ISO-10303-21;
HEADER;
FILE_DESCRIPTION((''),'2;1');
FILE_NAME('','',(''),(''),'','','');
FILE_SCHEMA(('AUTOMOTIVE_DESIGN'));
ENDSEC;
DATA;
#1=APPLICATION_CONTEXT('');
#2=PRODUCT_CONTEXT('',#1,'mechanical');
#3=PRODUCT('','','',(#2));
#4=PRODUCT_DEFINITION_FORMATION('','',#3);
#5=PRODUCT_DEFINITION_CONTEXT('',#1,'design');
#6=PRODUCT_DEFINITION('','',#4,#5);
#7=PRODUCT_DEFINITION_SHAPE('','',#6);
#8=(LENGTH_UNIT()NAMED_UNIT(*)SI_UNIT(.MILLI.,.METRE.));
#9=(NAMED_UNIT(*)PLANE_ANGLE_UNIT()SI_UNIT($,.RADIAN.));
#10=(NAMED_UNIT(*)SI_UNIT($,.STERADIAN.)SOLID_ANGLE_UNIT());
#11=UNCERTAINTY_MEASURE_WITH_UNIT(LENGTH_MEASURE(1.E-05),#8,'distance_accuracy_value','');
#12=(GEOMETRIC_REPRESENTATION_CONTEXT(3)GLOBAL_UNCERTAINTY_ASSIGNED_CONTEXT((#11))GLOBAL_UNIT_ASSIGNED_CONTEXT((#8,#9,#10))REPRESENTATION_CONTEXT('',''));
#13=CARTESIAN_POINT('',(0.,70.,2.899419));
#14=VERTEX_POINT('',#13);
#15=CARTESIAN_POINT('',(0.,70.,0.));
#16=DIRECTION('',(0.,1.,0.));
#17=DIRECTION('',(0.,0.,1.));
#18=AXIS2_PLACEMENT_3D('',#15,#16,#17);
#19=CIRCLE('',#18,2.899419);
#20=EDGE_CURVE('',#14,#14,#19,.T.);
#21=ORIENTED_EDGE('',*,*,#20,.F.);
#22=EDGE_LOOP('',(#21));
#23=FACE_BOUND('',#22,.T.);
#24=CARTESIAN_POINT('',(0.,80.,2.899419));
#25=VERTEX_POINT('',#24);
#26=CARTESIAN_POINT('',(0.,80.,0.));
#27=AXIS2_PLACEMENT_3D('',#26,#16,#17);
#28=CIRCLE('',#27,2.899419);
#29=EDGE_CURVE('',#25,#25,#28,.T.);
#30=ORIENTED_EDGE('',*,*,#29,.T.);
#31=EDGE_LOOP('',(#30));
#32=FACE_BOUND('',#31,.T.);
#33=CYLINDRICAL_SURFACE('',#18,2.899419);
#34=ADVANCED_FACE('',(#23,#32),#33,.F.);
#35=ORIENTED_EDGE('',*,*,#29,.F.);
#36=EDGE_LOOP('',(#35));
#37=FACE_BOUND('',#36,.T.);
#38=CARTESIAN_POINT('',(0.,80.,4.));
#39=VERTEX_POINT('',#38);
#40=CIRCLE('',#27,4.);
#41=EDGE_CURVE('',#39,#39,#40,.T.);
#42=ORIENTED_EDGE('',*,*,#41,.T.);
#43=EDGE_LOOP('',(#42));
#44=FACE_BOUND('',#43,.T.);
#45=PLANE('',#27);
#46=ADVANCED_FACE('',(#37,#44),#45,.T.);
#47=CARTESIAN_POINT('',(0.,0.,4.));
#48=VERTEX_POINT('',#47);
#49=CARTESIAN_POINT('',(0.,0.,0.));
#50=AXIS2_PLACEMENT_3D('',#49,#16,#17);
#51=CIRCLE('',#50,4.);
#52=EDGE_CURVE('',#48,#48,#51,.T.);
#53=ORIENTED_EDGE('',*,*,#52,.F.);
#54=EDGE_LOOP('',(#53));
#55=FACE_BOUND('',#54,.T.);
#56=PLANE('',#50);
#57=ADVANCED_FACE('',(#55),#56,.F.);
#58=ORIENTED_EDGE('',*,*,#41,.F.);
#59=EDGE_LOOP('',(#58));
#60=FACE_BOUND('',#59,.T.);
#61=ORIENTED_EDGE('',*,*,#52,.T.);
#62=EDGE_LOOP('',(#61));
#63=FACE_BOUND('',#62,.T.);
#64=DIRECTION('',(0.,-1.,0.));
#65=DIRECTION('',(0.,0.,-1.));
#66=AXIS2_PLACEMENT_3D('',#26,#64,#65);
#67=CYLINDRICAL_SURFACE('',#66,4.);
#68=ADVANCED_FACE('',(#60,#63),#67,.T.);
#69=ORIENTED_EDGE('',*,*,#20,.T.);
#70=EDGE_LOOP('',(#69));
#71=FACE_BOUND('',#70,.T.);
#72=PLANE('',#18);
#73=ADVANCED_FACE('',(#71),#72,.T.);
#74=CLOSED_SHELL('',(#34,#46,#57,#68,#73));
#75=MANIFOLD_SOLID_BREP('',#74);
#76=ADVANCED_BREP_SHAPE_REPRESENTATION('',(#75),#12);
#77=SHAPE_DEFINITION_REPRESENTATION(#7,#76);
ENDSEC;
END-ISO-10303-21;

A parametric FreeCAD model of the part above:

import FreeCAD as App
import Part
import Sketcher

V = App.Vector
Q = App.Units.Quantity

doc = App.newDocument("Part")
body = doc.addObject("PartDesign::Body", "Body")

sketch1 = doc.addObject("Sketcher::SketchObject", "Sketch")
body.addObject(sketch1)
sketch1.AttachmentSupport = (doc.XZ_Plane, [""])
sketch1.MapMode = "FlatFace"
sketch1.addGeometry(Part.Circle(V(0, 0, 0), V(0, 0, 1), 4), False)
sketch1.addConstraint([
    Sketcher.Constraint("Coincident", 0, 3, -1, 1),
    Sketcher.Constraint("Diameter", 0, Q("8 mm")),
])
pad1 = doc.addObject("PartDesign::Pad", "Pad")
body.addObject(pad1)
pad1.Profile = sketch1
pad1.Length = 80
pad1.Reversed = True

sketch2 = doc.addObject("Sketcher::SketchObject", "Sketch001")
body.addObject(sketch2)
sketch2.AttachmentSupport = (doc.XZ_Plane, [""])
sketch2.MapMode = "FlatFace"
sketch2.AttachmentOffset = App.Placement(V(0, 0, -80), App.Rotation())
sketch2.addGeometry(Part.Circle(V(0, 0, 0), V(0, 0, 1), 2.899419), False)
sketch2.addConstraint([
    Sketcher.Constraint("Coincident", 0, 3, -1, 1),
    Sketcher.Constraint("Diameter", 0, Q("5.798838 mm")),
])
pocket1 = doc.addObject("PartDesign::Pocket", "Pocket")
body.addObject(pocket1)
pocket1.Profile = sketch2
pocket1.Length = 10
pocket1.Reversed = True

doc.recompute()
